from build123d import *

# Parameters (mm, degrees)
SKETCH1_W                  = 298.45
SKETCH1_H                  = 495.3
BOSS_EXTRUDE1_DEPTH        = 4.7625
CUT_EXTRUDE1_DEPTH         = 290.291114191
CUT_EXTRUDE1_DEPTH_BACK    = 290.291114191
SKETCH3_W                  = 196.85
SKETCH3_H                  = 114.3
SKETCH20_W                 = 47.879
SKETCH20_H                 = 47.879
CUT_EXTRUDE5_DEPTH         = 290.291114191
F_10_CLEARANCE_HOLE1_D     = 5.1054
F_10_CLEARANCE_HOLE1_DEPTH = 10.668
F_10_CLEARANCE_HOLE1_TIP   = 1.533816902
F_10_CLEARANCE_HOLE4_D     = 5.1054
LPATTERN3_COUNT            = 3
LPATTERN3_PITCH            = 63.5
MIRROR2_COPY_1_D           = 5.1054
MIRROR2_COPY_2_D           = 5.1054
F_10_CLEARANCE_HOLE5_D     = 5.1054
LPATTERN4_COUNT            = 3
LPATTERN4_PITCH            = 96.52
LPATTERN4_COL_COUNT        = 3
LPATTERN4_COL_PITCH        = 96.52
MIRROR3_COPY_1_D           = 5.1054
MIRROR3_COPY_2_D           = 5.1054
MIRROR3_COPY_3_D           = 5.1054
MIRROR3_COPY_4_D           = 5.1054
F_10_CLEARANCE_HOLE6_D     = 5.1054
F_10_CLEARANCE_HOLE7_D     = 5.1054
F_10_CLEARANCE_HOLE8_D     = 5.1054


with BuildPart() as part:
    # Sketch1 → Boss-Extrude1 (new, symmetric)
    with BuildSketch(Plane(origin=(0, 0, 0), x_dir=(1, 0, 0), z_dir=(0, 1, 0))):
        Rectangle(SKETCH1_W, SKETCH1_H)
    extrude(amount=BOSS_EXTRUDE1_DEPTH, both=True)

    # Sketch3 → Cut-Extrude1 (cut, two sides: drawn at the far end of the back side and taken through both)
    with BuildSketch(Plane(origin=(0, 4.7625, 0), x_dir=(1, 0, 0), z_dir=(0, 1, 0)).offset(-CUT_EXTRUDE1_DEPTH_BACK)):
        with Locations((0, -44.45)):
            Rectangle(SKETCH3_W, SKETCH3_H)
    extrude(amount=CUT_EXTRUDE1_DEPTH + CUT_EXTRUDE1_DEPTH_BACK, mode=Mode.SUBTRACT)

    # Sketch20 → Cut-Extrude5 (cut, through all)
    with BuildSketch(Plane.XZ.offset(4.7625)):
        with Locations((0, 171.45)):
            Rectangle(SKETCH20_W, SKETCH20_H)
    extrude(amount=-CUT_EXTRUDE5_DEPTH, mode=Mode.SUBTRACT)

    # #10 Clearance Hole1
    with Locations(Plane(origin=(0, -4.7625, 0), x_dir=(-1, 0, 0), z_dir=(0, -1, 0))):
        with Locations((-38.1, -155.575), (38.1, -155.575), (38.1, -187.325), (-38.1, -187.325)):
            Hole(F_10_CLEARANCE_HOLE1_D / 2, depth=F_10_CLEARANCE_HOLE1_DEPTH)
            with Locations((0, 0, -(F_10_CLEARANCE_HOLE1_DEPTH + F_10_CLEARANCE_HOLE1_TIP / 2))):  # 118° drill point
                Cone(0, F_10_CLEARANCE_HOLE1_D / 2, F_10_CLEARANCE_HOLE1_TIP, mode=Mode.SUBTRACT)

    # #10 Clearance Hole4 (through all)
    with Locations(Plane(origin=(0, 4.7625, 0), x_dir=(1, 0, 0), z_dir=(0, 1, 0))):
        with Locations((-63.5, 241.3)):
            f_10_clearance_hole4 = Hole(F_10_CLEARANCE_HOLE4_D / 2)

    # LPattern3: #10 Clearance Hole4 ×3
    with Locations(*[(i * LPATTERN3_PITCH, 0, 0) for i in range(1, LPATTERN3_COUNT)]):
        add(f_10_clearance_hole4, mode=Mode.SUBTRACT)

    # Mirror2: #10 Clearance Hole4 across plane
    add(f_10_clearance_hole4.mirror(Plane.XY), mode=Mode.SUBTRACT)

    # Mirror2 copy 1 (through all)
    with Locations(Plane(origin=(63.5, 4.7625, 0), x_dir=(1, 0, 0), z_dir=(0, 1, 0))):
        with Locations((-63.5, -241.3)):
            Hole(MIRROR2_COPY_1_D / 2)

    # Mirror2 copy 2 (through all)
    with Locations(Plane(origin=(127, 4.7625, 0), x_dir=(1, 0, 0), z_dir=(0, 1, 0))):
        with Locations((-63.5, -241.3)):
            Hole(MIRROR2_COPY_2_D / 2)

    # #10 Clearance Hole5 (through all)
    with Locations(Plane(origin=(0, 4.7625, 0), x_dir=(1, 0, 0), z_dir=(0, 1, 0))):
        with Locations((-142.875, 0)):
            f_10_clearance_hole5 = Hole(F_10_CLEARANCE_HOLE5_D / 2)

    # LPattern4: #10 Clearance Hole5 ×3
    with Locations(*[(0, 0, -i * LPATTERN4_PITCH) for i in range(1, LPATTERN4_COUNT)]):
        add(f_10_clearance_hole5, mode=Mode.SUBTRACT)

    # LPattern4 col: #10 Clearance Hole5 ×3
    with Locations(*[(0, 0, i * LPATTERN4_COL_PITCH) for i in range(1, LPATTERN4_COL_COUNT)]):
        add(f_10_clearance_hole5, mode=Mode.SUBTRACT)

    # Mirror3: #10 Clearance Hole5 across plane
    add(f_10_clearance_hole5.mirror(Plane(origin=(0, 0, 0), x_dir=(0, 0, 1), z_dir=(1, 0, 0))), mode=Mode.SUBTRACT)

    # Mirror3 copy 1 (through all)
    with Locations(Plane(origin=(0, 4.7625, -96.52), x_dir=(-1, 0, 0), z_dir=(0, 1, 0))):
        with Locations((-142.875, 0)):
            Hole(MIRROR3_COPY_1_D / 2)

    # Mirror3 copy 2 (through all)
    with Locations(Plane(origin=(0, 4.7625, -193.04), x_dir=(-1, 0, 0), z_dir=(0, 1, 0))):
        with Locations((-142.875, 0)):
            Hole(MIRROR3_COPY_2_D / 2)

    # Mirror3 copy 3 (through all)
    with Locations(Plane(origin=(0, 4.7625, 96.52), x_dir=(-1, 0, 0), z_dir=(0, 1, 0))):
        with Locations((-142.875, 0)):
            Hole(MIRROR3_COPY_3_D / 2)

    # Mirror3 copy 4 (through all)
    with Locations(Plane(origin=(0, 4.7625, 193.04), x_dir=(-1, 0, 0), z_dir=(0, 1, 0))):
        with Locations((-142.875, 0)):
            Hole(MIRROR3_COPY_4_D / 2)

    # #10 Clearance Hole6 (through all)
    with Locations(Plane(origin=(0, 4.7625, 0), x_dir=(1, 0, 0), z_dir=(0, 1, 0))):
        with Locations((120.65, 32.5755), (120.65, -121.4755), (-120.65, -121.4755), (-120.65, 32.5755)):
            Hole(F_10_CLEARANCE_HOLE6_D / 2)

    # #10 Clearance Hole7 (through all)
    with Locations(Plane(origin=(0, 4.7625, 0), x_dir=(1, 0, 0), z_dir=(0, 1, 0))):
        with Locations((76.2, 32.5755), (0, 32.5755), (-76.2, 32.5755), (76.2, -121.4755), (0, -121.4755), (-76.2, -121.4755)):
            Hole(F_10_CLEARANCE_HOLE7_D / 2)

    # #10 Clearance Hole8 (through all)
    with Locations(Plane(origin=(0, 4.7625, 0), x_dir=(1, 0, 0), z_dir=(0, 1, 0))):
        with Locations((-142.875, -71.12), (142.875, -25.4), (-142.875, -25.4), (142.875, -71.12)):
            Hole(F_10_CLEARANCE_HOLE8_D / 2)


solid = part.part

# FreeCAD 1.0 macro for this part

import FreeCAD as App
import Part
import Sketcher
from FreeCAD import Vector
Q = App.Units.Quantity

doc = App.newDocument("Part")
params = doc.addObject("Spreadsheet::Sheet", "Params")
for row, (alias, value) in enumerate([
    ("sketch1_height", "19.5 in"),
    ("sketch1_width", "11.75 in"),
    ("pad1_length", "0.375 in"),
    ("sketch2_height", "4.5 in"),
    ("sketch2_width", "7.75 in"),
    ("sketch3_width", "1.885 in"),
    ("sketch4_diameter", "0.201 in"),
    ("hole_diameter", "0.201 in"),
    ("hole_depth", "0.42 in"),
    ("sketch5_diameter", "0.201 in"),
    ("hole2_diameter", "0.201 in"),
    ("linearpattern_pitch", "2.5 in"),
    ("sketch6_diameter", "0.201 in"),
    ("hole3_diameter", "0.201 in"),
    ("sketch7_diameter", "0.201 in"),
    ("hole4_diameter", "0.201 in"),
    ("sketch8_diameter", "0.201 in"),
    ("hole5_diameter", "0.201 in"),
    ("linearpattern2_pitch", "3.8 in"),
    ("linearpattern3_pitch", "3.8 in"),
    ("sketch9_diameter", "0.201 in"),
    ("hole6_diameter", "0.201 in"),
    ("sketch10_diameter", "0.201 in"),
    ("hole7_diameter", "0.201 in"),
    ("sketch11_diameter", "0.201 in"),
    ("hole8_diameter", "0.201 in"),
    ("sketch12_diameter", "0.201 in"),
    ("hole9_diameter", "0.201 in"),
    ("sketch13_diameter", "0.201 in"),
    ("hole10_diameter", "0.201 in"),
    ("sketch14_diameter", "0.201 in"),
    ("hole11_diameter", "0.201 in"),
    ("sketch15_diameter", "0.201 in"),
    ("hole12_diameter", "0.201 in"),
], start=1):
    params.set(f"A{row}", alias)
    params.set(f"B{row}", "=" + value)
    params.setAlias(f"B{row}", alias)

body = doc.addObject("PartDesign::Body", "Body")

sketch1 = body.newObject("Sketcher::SketchObject", "Sketch")
sketch1.AttachmentSupport = (doc.getObject("XZ_Plane"), [""])
sketch1.MapMode = "FlatFace"
sketch1.addGeometry(Part.LineSegment(Vector(-149, -248, 0), Vector(-149, 248, 0)), False)
sketch1.addGeometry(Part.LineSegment(Vector(-149, 248, 0), Vector(149, 248, 0)), False)
sketch1.addGeometry(Part.LineSegment(Vector(149, 248, 0), Vector(149, -248, 0)), False)
sketch1.addGeometry(Part.LineSegment(Vector(149, -248, 0), Vector(-149, -248, 0)), False)
sketch1.addConstraint(Sketcher.Constraint("Coincident", 0, 2, 1, 1))
sketch1.addConstraint(Sketcher.Constraint("Coincident", 1, 2, 2, 1))
sketch1.addConstraint(Sketcher.Constraint("Coincident", 2, 2, 3, 1))
sketch1.addConstraint(Sketcher.Constraint("Coincident", 3, 2, 0, 1))
sketch1.addConstraint(Sketcher.Constraint("Vertical", 0))
sketch1.addConstraint(Sketcher.Constraint("Horizontal", 1))
sketch1.addConstraint(Sketcher.Constraint("Vertical", 2))
sketch1.addConstraint(Sketcher.Constraint("Horizontal", 3))
sketch1.addConstraint(Sketcher.Constraint("Symmetric", 0, 2, 2, 2, -1, 1))
sketch1.addConstraint(Sketcher.Constraint("DistanceY", 0, 1, 0, 2, Q("19.5 in")))
sketch1.addConstraint(Sketcher.Constraint("DistanceX", 1, 1, 1, 2, Q("11.75 in")))
sketch1.setExpression("Constraints[9]", "Params.sketch1_height")
sketch1.setExpression("Constraints[10]", "Params.sketch1_width")
pad1 = body.newObject("PartDesign::Pad", "Pad")
pad1.Profile = sketch1
pad1.setExpression("Length", "Params.pad1_length")
pad1.Midplane = True

sketch2 = body.newObject("Sketcher::SketchObject", "Sketch001")
sketch2.AttachmentSupport = (doc.getObject("XZ_Plane"), [""])
sketch2.MapMode = "FlatFace"
sketch2.AttachmentOffset = App.Placement(Vector(0, 0, -0.1875 * 25.4), App.Rotation())
sketch2.addGeometry(Part.LineSegment(Vector(-98, -13, 0), Vector(-98, 102, 0)), False)
sketch2.addGeometry(Part.LineSegment(Vector(-98, 102, 0), Vector(98, 102, 0)), False)
sketch2.addGeometry(Part.LineSegment(Vector(98, 102, 0), Vector(98, -13, 0)), False)
sketch2.addGeometry(Part.LineSegment(Vector(98, -13, 0), Vector(-98, -13, 0)), False)
sketch2.addConstraint(Sketcher.Constraint("Coincident", 0, 2, 1, 1))
sketch2.addConstraint(Sketcher.Constraint("Coincident", 1, 2, 2, 1))
sketch2.addConstraint(Sketcher.Constraint("Coincident", 2, 2, 3, 1))
sketch2.addConstraint(Sketcher.Constraint("Coincident", 3, 2, 0, 1))
sketch2.addConstraint(Sketcher.Constraint("Vertical", 0))
sketch2.addConstraint(Sketcher.Constraint("Horizontal", 1))
sketch2.addConstraint(Sketcher.Constraint("Vertical", 2))
sketch2.addConstraint(Sketcher.Constraint("Horizontal", 3))
sketch2.addConstraint(Sketcher.Constraint("DistanceY", 0, 1, 0, 2, Q("4.5 in")))
sketch2.addConstraint(Sketcher.Constraint("DistanceY", -1, 1, 0, 2, Q("4 in")))
sketch2.addConstraint(Sketcher.Constraint("DistanceX", 1, 1, 1, 2, Q("7.75 in")))
sketch2.addConstraint(Sketcher.Constraint("DistanceX", 0, 2, -1, 1, Q("3.875 in")))
sketch2.setExpression("Constraints[8]", "Params.sketch2_height")
sketch2.setExpression("Constraints[10]", "Params.sketch2_width")
pocket1 = body.newObject("PartDesign::Pocket", "Pocket")
pocket1.Profile = sketch2
pocket1.Type = "ThroughAll"
pocket1.Midplane = True

sketch3 = body.newObject("Sketcher::SketchObject", "Sketch002")
sketch3.AttachmentSupport = (doc.getObject("XZ_Plane"), [""])
sketch3.MapMode = "FlatFace"
sketch3.AttachmentOffset = App.Placement(Vector(0, 0, 0.1875 * 25.4), App.Rotation())
sketch3.addGeometry(Part.LineSegment(Vector(-24, 195, 0), Vector(-24, 148, 0)), False)
sketch3.addGeometry(Part.LineSegment(Vector(-24, 148, 0), Vector(24, 148, 0)), False)
sketch3.addGeometry(Part.LineSegment(Vector(24, 148, 0), Vector(24, 195, 0)), False)
sketch3.addGeometry(Part.LineSegment(Vector(24, 195, 0), Vector(-24, 195, 0)), False)
sketch3.addConstraint(Sketcher.Constraint("Coincident", 0, 2, 1, 1))
sketch3.addConstraint(Sketcher.Constraint("Coincident", 1, 2, 2, 1))
sketch3.addConstraint(Sketcher.Constraint("Coincident", 2, 2, 3, 1))
sketch3.addConstraint(Sketcher.Constraint("Coincident", 3, 2, 0, 1))
sketch3.addConstraint(Sketcher.Constraint("Vertical", 0))
sketch3.addConstraint(Sketcher.Constraint("Horizontal", 1))
sketch3.addConstraint(Sketcher.Constraint("Vertical", 2))
sketch3.addConstraint(Sketcher.Constraint("Horizontal", 3))
sketch3.addConstraint(Sketcher.Constraint("Equal", 3, 0))
sketch3.addConstraint(Sketcher.Constraint("DistanceX", 1, 1, 1, 2, Q("1.885 in")))
sketch3.addConstraint(Sketcher.Constraint("DistanceX", 0, 2, -1, 1, Q("0.9425 in")))
sketch3.addConstraint(Sketcher.Constraint("DistanceY", -1, 1, 0, 2, Q("5.8075 in")))
sketch3.setExpression("Constraints[9]", "Params.sketch3_width")
pocket2 = body.newObject("PartDesign::Pocket", "Pocket001")
pocket2.Profile = sketch3
pocket2.Type = "ThroughAll"

sketch4 = body.newObject("Sketcher::SketchObject", "Sketch003")
sketch4.AttachmentSupport = (doc.getObject("XZ_Plane"), [""])
sketch4.MapMode = "FlatFace"
sketch4.AttachmentOffset = App.Placement(Vector(0, 0, 0.1875 * 25.4), App.Rotation())
sketch4.addGeometry(Part.Circle(Vector(38.1, 155.6, 0), Vector(0, 0, 1), 2.6), False)
sketch4.addGeometry(Part.Circle(Vector(-38.1, 155.6, 0), Vector(0, 0, 1), 2.6), False)
sketch4.addGeometry(Part.Circle(Vector(-38.1, 187.3, 0), Vector(0, 0, 1), 2.6), False)
sketch4.addGeometry(Part.Circle(Vector(38.1, 187.3, 0), Vector(0, 0, 1), 2.6), False)
sketch4.addConstraint(Sketcher.Constraint("Equal", 0, 1))
sketch4.addConstraint(Sketcher.Constraint("Equal", 1, 2))
sketch4.addConstraint(Sketcher.Constraint("Equal", 2, 3))
sketch4.addConstraint(Sketcher.Constraint("Symmetric", 0, 3, 1, 3, -2))
sketch4.addConstraint(Sketcher.Constraint("Symmetric", 2, 3, 3, 3, -2))
sketch4.addConstraint(Sketcher.Constraint("Vertical", 1, 3, 2, 3))
sketch4.addConstraint(Sketcher.Constraint("Diameter", 0, Q("0.201 in")))
sketch4.addConstraint(Sketcher.Constraint("DistanceX", 1, 3, 0, 3, Q("3 in")))
sketch4.addConstraint(Sketcher.Constraint("DistanceY", 1, 3, 2, 3, Q("1.25 in")))
sketch4.addConstraint(Sketcher.Constraint("DistanceY", -1, 1, 0, 3, Q("6.125 in")))
sketch4.setExpression("Constraints[6]", "Params.sketch4_diameter")
doc.recompute()
hole = body.newObject("PartDesign::Hole", "Hole")
hole.Profile = sketch4
hole.ThreadType = "None"
hole.setExpression("Diameter", "Params.hole_diameter")
hole.DepthType = "Dimension"
hole.setExpression("Depth", "Params.hole_depth")
hole.DrillPoint = "Angled"
hole.DrillPointAngle = 118

sketch5 = body.newObject("Sketcher::SketchObject", "Sketch004")
sketch5.AttachmentSupport = (doc.getObject("XZ_Plane"), [""])
sketch5.MapMode = "FlatFace"
sketch5.AttachmentOffset = App.Placement(Vector(0, 0, -0.1875 * 25.4), App.Rotation())
sketch5.addGeometry(Part.Circle(Vector(-63.5, -241.3, 0), Vector(0, 0, 1), 2.6), False)
sketch5.addConstraint(Sketcher.Constraint("Diameter", 0, Q("0.201 in")))
sketch5.addConstraint(Sketcher.Constraint("DistanceX", 0, 3, -1, 1, Q("2.5 in")))
sketch5.addConstraint(Sketcher.Constraint("DistanceY", 0, 3, -1, 1, Q("9.5 in")))
sketch5.setExpression("Constraints[0]", "Params.sketch5_diameter")
doc.recompute()
hole2 = body.newObject("PartDesign::Hole", "Hole001")
hole2.Profile = sketch5
hole2.ThreadType = "None"
hole2.setExpression("Diameter", "Params.hole2_diameter")
hole2.DepthType = "ThroughAll"
hole2.Reversed = True
doc.recompute()

linearpattern = body.newObject("PartDesign::LinearPattern", "LinearPattern")
linearpattern.Originals = [hole2]
linearpattern.Direction = (doc.getObject("X_Axis"), [""])
linearpattern.Mode = "offset"
linearpattern.setExpression("Offset", "Params.linearpattern_pitch")
linearpattern.Occurrences = 3
body.Tip = linearpattern
doc.recompute()

mirrored = body.newObject("PartDesign::Mirrored", "Mirrored")
mirrored.Originals = [hole2]
mirrored.MirrorPlane = (doc.getObject("XY_Plane"), [""])
body.Tip = mirrored

sketch6 = body.newObject("Sketcher::SketchObject", "Sketch005")
sketch6.AttachmentSupport = (doc.getObject("XZ_Plane"), [""])
sketch6.MapMode = "FlatFace"
sketch6.AttachmentOffset = App.Placement(Vector(0, 0, -0.1875 * 25.4), App.Rotation())
sketch6.addGeometry(Part.Circle(Vector(0, 241.3, 0), Vector(0, 0, 1), 2.6), False)
sketch6.addConstraint(Sketcher.Constraint("PointOnObject", 0, 3, -2))
sketch6.addConstraint(Sketcher.Constraint("Diameter", 0, Q("0.201 in")))
sketch6.addConstraint(Sketcher.Constraint("DistanceY", -1, 1, 0, 3, Q("9.5 in")))
sketch6.setExpression("Constraints[1]", "Params.sketch6_diameter")
doc.recompute()
hole3 = body.newObject("PartDesign::Hole", "Hole002")
hole3.Profile = sketch6
hole3.ThreadType = "None"
hole3.setExpression("Diameter", "Params.hole3_diameter")
hole3.DepthType = "ThroughAll"
hole3.Reversed = True

sketch7 = body.newObject("Sketcher::SketchObject", "Sketch006")
sketch7.AttachmentSupport = (doc.getObject("XZ_Plane"), [""])
sketch7.MapMode = "FlatFace"
sketch7.AttachmentOffset = App.Placement(Vector(0, 0, -0.1875 * 25.4), App.Rotation())
sketch7.addGeometry(Part.Circle(Vector(63.5, 241.3, 0), Vector(0, 0, 1), 2.6), False)
sketch7.addConstraint(Sketcher.Constraint("Diameter", 0, Q("0.201 in")))
sketch7.addConstraint(Sketcher.Constraint("DistanceX", -1, 1, 0, 3, Q("2.5 in")))
sketch7.addConstraint(Sketcher.Constraint("DistanceY", -1, 1, 0, 3, Q("9.5 in")))
sketch7.setExpression("Constraints[0]", "Params.sketch7_diameter")
doc.recompute()
hole4 = body.newObject("PartDesign::Hole", "Hole003")
hole4.Profile = sketch7
hole4.ThreadType = "None"
hole4.setExpression("Diameter", "Params.hole4_diameter")
hole4.DepthType = "ThroughAll"
hole4.Reversed = True

sketch8 = body.newObject("Sketcher::SketchObject", "Sketch007")
sketch8.AttachmentSupport = (doc.getObject("XZ_Plane"), [""])
sketch8.MapMode = "FlatFace"
sketch8.AttachmentOffset = App.Placement(Vector(0, 0, -0.1875 * 25.4), App.Rotation())
sketch8.addGeometry(Part.Circle(Vector(-142.9, 0, 0), Vector(0, 0, 1), 2.6), False)
sketch8.addConstraint(Sketcher.Constraint("PointOnObject", 0, 3, -1))
sketch8.addConstraint(Sketcher.Constraint("Diameter", 0, Q("0.201 in")))
sketch8.addConstraint(Sketcher.Constraint("DistanceX", 0, 3, -1, 1, Q("5.625 in")))
sketch8.setExpression("Constraints[1]", "Params.sketch8_diameter")
doc.recompute()
hole5 = body.newObject("PartDesign::Hole", "Hole004")
hole5.Profile = sketch8
hole5.ThreadType = "None"
hole5.setExpression("Diameter", "Params.hole5_diameter")
hole5.DepthType = "ThroughAll"
hole5.Reversed = True
doc.recompute()

linearpattern2 = body.newObject("PartDesign::LinearPattern", "LinearPattern001")
linearpattern2.Originals = [hole5]
linearpattern2.Direction = (doc.getObject("Z_Axis"), [""])
linearpattern2.Mode = "offset"
linearpattern2.setExpression("Offset", "Params.linearpattern2_pitch")
linearpattern2.Occurrences = 3
linearpattern2.Reversed = True
body.Tip = linearpattern2
doc.recompute()

linearpattern3 = body.newObject("PartDesign::LinearPattern", "LinearPattern002")
linearpattern3.Originals = [hole5]
linearpattern3.Direction = (doc.getObject("Z_Axis"), [""])
linearpattern3.Mode = "offset"
linearpattern3.setExpression("Offset", "Params.linearpattern3_pitch")
linearpattern3.Occurrences = 3
body.Tip = linearpattern3
doc.recompute()

mirrored2 = body.newObject("PartDesign::Mirrored", "Mirrored001")
mirrored2.Originals = [hole5]
mirrored2.MirrorPlane = (doc.getObject("YZ_Plane"), [""])
body.Tip = mirrored2

sketch9 = body.newObject("Sketcher::SketchObject", "Sketch008")
sketch9.AttachmentSupport = (doc.getObject("XZ_Plane"), [""])
sketch9.MapMode = "FlatFace"
sketch9.AttachmentOffset = App.Placement(Vector(0, 0, -0.1875 * 25.4), App.Rotation())
sketch9.addGeometry(Part.Circle(Vector(142.9, -96.5, 0), Vector(0, 0, 1), 2.6), False)
sketch9.addConstraint(Sketcher.Constraint("Diameter", 0, Q("0.201 in")))
sketch9.addConstraint(Sketcher.Constraint("DistanceY", 0, 3, -1, 1, Q("3.8 in")))
sketch9.addConstraint(Sketcher.Constraint("DistanceX", -1, 1, 0, 3, Q("5.625 in")))
sketch9.setExpression("Constraints[0]", "Params.sketch9_diameter")
doc.recompute()
hole6 = body.newObject("PartDesign::Hole", "Hole005")
hole6.Profile = sketch9
hole6.ThreadType = "None"
hole6.setExpression("Diameter", "Params.hole6_diameter")
hole6.DepthType = "ThroughAll"
hole6.Reversed = True

sketch10 = body.newObject("Sketcher::SketchObject", "Sketch009")
sketch10.AttachmentSupport = (doc.getObject("XZ_Plane"), [""])
sketch10.MapMode = "FlatFace"
sketch10.AttachmentOffset = App.Placement(Vector(0, 0, -0.1875 * 25.4), App.Rotation())
sketch10.addGeometry(Part.Circle(Vector(142.9, -193, 0), Vector(0, 0, 1), 2.6), False)
sketch10.addConstraint(Sketcher.Constraint("Diameter", 0, Q("0.201 in")))
sketch10.addConstraint(Sketcher.Constraint("DistanceY", 0, 3, -1, 1, Q("7.6 in")))
sketch10.addConstraint(Sketcher.Constraint("DistanceX", -1, 1, 0, 3, Q("5.625 in")))
sketch10.setExpression("Constraints[0]", "Params.sketch10_diameter")
doc.recompute()
hole7 = body.newObject("PartDesign::Hole", "Hole006")
hole7.Profile = sketch10
hole7.ThreadType = "None"
hole7.setExpression("Diameter", "Params.hole7_diameter")
hole7.DepthType = "ThroughAll"
hole7.Reversed = True

sketch11 = body.newObject("Sketcher::SketchObject", "Sketch010")
sketch11.AttachmentSupport = (doc.getObject("XZ_Plane"), [""])
sketch11.MapMode = "FlatFace"
sketch11.AttachmentOffset = App.Placement(Vector(0, 0, -0.1875 * 25.4), App.Rotation())
sketch11.addGeometry(Part.Circle(Vector(142.9, 96.5, 0), Vector(0, 0, 1), 2.6), False)
sketch11.addConstraint(Sketcher.Constraint("Diameter", 0, Q("0.201 in")))
sketch11.addConstraint(Sketcher.Constraint("DistanceY", -1, 1, 0, 3, Q("3.8 in")))
sketch11.addConstraint(Sketcher.Constraint("DistanceX", -1, 1, 0, 3, Q("5.625 in")))
sketch11.setExpression("Constraints[0]", "Params.sketch11_diameter")
doc.recompute()
hole8 = body.newObject("PartDesign::Hole", "Hole007")
hole8.Profile = sketch11
hole8.ThreadType = "None"
hole8.setExpression("Diameter", "Params.hole8_diameter")
hole8.DepthType = "ThroughAll"
hole8.Reversed = True

sketch12 = body.newObject("Sketcher::SketchObject", "Sketch011")
sketch12.AttachmentSupport = (doc.getObject("XZ_Plane"), [""])
sketch12.MapMode = "FlatFace"
sketch12.AttachmentOffset = App.Placement(Vector(0, 0, -0.1875 * 25.4), App.Rotation())
sketch12.addGeometry(Part.Circle(Vector(142.9, 193, 0), Vector(0, 0, 1), 2.6), False)
sketch12.addConstraint(Sketcher.Constraint("Diameter", 0, Q("0.201 in")))
sketch12.addConstraint(Sketcher.Constraint("DistanceY", -1, 1, 0, 3, Q("7.6 in")))
sketch12.addConstraint(Sketcher.Constraint("DistanceX", -1, 1, 0, 3, Q("5.625 in")))
sketch12.setExpression("Constraints[0]", "Params.sketch12_diameter")
doc.recompute()
hole9 = body.newObject("PartDesign::Hole", "Hole008")
hole9.Profile = sketch12
hole9.ThreadType = "None"
hole9.setExpression("Diameter", "Params.hole9_diameter")
hole9.DepthType = "ThroughAll"
hole9.Reversed = True

sketch13 = body.newObject("Sketcher::SketchObject", "Sketch012")
sketch13.AttachmentSupport = (doc.getObject("XZ_Plane"), [""])
sketch13.MapMode = "FlatFace"
sketch13.AttachmentOffset = App.Placement(Vector(0, 0, -0.1875 * 25.4), App.Rotation())
sketch13.addGeometry(Part.Circle(Vector(120.7, -32.6, 0), Vector(0, 0, 1), 2.6), False)
sketch13.addGeometry(Part.Circle(Vector(120.7, 121.5, 0), Vector(0, 0, 1), 2.6), False)
sketch13.addGeometry(Part.Circle(Vector(-120.7, 121.5, 0), Vector(0, 0, 1), 2.6), False)
sketch13.addGeometry(Part.Circle(Vector(-120.7, -32.6, 0), Vector(0, 0, 1), 2.6), False)
sketch13.addConstraint(Sketcher.Constraint("Equal", 0, 1))
sketch13.addConstraint(Sketcher.Constraint("Equal", 1, 2))
sketch13.addConstraint(Sketcher.Constraint("Equal", 2, 3))
sketch13.addConstraint(Sketcher.Constraint("Symmetric", 1, 3, 2, 3, -2))
sketch13.addConstraint(Sketcher.Constraint("Symmetric", 0, 3, 3, 3, -2))
sketch13.addConstraint(Sketcher.Constraint("Vertical", 0, 3, 1, 3))
sketch13.addConstraint(Sketcher.Constraint("Diameter", 0, Q("0.201 in")))
sketch13.addConstraint(Sketcher.Constraint("DistanceX", 2, 3, 1, 3, Q("9.5 in")))
sketch13.addConstraint(Sketcher.Constraint("DistanceY", 0, 3, 1, 3, Q("6.065 in")))
sketch13.addConstraint(Sketcher.Constraint("DistanceY", 0, 3, -1, 1, Q("1.2825 in")))
sketch13.setExpression("Constraints[6]", "Params.sketch13_diameter")
doc.recompute()
hole10 = body.newObject("PartDesign::Hole", "Hole009")
hole10.Profile = sketch13
hole10.ThreadType = "None"
hole10.setExpression("Diameter", "Params.hole10_diameter")
hole10.DepthType = "ThroughAll"
hole10.Reversed = True

sketch14 = body.newObject("Sketcher::SketchObject", "Sketch013")
sketch14.AttachmentSupport = (doc.getObject("XZ_Plane"), [""])
sketch14.MapMode = "FlatFace"
sketch14.AttachmentOffset = App.Placement(Vector(0, 0, -0.1875 * 25.4), App.Rotation())
sketch14.addGeometry(Part.Circle(Vector(76.2, -32.6, 0), Vector(0, 0, 1), 2.6), False)
sketch14.addGeometry(Part.Circle(Vector(0, -32.6, 0), Vector(0, 0, 1), 2.6), False)
sketch14.addGeometry(Part.Circle(Vector(-76.2, -32.6, 0), Vector(0, 0, 1), 2.6), False)
sketch14.addGeometry(Part.Circle(Vector(76.2, 121.5, 0), Vector(0, 0, 1), 2.6), False)
sketch14.addGeometry(Part.Circle(Vector(0, 121.5, 0), Vector(0, 0, 1), 2.6), False)
sketch14.addGeometry(Part.Circle(Vector(-76.2, 121.5, 0), Vector(0, 0, 1), 2.6), False)
sketch14.addConstraint(Sketcher.Constraint("Equal", 0, 1))
sketch14.addConstraint(Sketcher.Constraint("Equal", 1, 2))
sketch14.addConstraint(Sketcher.Constraint("Equal", 2, 3))
sketch14.addConstraint(Sketcher.Constraint("Equal", 3, 4))
sketch14.addConstraint(Sketcher.Constraint("Equal", 4, 5))
sketch14.addConstraint(Sketcher.Constraint("Symmetric", 0, 3, 2, 3, -2))
sketch14.addConstraint(Sketcher.Constraint("Symmetric", 3, 3, 5, 3, -2))
sketch14.addConstraint(Sketcher.Constraint("PointOnObject", 1, 3, -2))
sketch14.addConstraint(Sketcher.Constraint("PointOnObject", 4, 3, -2))
sketch14.addConstraint(Sketcher.Constraint("Horizontal", 0, 3, 1, 3))
sketch14.addConstraint(Sketcher.Constraint("Horizontal", 3, 3, 4, 3))
sketch14.addConstraint(Sketcher.Constraint("Vertical", 0, 3, 3, 3))
sketch14.addConstraint(Sketcher.Constraint("Diameter", 0, Q("0.201 in")))
sketch14.addConstraint(Sketcher.Constraint("DistanceX", -1, 1, 0, 3, Q("3 in")))
sketch14.addConstraint(Sketcher.Constraint("DistanceY", 0, 3, 3, 3, Q("6.065 in")))
sketch14.addConstraint(Sketcher.Constraint("DistanceY", 0, 3, -1, 1, Q("1.2825 in")))
sketch14.setExpression("Constraints[12]", "Params.sketch14_diameter")
doc.recompute()
hole11 = body.newObject("PartDesign::Hole", "Hole010")
hole11.Profile = sketch14
hole11.ThreadType = "None"
hole11.setExpression("Diameter", "Params.hole11_diameter")
hole11.DepthType = "ThroughAll"
hole11.Reversed = True

sketch15 = body.newObject("Sketcher::SketchObject", "Sketch014")
sketch15.AttachmentSupport = (doc.getObject("XZ_Plane"), [""])
sketch15.MapMode = "FlatFace"
sketch15.AttachmentOffset = App.Placement(Vector(0, 0, -0.1875 * 25.4), App.Rotation())
sketch15.addGeometry(Part.Circle(Vector(-142.9, 71.1, 0), Vector(0, 0, 1), 2.6), False)
sketch15.addGeometry(Part.Circle(Vector(142.9, 25.4, 0), Vector(0, 0, 1), 2.6), False)
sketch15.addGeometry(Part.Circle(Vector(-142.9, 25.4, 0), Vector(0, 0, 1), 2.6), False)
sketch15.addGeometry(Part.Circle(Vector(142.9, 71.1, 0), Vector(0, 0, 1), 2.6), False)
sketch15.addConstraint(Sketcher.Constraint("Equal", 0, 1))
sketch15.addConstraint(Sketcher.Constraint("Equal", 1, 2))
sketch15.addConstraint(Sketcher.Constraint("Equal", 2, 3))
sketch15.addConstraint(Sketcher.Constraint("Symmetric", 1, 3, 2, 3, -2))
sketch15.addConstraint(Sketcher.Constraint("Symmetric", 0, 3, 3, 3, -2))
sketch15.addConstraint(Sketcher.Constraint("Vertical", 0, 3, 2, 3))
sketch15.addConstraint(Sketcher.Constraint("Diameter", 0, Q("0.201 in")))
sketch15.addConstraint(Sketcher.Constraint("DistanceY", -1, 1, 1, 3, Q("1 in")))
sketch15.addConstraint(Sketcher.Constraint("DistanceY", -1, 1, 0, 3, Q("2.8 in")))
sketch15.addConstraint(Sketcher.Constraint("DistanceX", 0, 3, 1, 3, Q("11.25 in")))
sketch15.setExpression("Constraints[6]", "Params.sketch15_diameter")
doc.recompute()
hole12 = body.newObject("PartDesign::Hole", "Hole011")
hole12.Profile = sketch15
hole12.ThreadType = "None"
hole12.setExpression("Diameter", "Params.hole12_diameter")
hole12.DepthType = "ThroughAll"
hole12.Reversed = True

doc.recompute()
